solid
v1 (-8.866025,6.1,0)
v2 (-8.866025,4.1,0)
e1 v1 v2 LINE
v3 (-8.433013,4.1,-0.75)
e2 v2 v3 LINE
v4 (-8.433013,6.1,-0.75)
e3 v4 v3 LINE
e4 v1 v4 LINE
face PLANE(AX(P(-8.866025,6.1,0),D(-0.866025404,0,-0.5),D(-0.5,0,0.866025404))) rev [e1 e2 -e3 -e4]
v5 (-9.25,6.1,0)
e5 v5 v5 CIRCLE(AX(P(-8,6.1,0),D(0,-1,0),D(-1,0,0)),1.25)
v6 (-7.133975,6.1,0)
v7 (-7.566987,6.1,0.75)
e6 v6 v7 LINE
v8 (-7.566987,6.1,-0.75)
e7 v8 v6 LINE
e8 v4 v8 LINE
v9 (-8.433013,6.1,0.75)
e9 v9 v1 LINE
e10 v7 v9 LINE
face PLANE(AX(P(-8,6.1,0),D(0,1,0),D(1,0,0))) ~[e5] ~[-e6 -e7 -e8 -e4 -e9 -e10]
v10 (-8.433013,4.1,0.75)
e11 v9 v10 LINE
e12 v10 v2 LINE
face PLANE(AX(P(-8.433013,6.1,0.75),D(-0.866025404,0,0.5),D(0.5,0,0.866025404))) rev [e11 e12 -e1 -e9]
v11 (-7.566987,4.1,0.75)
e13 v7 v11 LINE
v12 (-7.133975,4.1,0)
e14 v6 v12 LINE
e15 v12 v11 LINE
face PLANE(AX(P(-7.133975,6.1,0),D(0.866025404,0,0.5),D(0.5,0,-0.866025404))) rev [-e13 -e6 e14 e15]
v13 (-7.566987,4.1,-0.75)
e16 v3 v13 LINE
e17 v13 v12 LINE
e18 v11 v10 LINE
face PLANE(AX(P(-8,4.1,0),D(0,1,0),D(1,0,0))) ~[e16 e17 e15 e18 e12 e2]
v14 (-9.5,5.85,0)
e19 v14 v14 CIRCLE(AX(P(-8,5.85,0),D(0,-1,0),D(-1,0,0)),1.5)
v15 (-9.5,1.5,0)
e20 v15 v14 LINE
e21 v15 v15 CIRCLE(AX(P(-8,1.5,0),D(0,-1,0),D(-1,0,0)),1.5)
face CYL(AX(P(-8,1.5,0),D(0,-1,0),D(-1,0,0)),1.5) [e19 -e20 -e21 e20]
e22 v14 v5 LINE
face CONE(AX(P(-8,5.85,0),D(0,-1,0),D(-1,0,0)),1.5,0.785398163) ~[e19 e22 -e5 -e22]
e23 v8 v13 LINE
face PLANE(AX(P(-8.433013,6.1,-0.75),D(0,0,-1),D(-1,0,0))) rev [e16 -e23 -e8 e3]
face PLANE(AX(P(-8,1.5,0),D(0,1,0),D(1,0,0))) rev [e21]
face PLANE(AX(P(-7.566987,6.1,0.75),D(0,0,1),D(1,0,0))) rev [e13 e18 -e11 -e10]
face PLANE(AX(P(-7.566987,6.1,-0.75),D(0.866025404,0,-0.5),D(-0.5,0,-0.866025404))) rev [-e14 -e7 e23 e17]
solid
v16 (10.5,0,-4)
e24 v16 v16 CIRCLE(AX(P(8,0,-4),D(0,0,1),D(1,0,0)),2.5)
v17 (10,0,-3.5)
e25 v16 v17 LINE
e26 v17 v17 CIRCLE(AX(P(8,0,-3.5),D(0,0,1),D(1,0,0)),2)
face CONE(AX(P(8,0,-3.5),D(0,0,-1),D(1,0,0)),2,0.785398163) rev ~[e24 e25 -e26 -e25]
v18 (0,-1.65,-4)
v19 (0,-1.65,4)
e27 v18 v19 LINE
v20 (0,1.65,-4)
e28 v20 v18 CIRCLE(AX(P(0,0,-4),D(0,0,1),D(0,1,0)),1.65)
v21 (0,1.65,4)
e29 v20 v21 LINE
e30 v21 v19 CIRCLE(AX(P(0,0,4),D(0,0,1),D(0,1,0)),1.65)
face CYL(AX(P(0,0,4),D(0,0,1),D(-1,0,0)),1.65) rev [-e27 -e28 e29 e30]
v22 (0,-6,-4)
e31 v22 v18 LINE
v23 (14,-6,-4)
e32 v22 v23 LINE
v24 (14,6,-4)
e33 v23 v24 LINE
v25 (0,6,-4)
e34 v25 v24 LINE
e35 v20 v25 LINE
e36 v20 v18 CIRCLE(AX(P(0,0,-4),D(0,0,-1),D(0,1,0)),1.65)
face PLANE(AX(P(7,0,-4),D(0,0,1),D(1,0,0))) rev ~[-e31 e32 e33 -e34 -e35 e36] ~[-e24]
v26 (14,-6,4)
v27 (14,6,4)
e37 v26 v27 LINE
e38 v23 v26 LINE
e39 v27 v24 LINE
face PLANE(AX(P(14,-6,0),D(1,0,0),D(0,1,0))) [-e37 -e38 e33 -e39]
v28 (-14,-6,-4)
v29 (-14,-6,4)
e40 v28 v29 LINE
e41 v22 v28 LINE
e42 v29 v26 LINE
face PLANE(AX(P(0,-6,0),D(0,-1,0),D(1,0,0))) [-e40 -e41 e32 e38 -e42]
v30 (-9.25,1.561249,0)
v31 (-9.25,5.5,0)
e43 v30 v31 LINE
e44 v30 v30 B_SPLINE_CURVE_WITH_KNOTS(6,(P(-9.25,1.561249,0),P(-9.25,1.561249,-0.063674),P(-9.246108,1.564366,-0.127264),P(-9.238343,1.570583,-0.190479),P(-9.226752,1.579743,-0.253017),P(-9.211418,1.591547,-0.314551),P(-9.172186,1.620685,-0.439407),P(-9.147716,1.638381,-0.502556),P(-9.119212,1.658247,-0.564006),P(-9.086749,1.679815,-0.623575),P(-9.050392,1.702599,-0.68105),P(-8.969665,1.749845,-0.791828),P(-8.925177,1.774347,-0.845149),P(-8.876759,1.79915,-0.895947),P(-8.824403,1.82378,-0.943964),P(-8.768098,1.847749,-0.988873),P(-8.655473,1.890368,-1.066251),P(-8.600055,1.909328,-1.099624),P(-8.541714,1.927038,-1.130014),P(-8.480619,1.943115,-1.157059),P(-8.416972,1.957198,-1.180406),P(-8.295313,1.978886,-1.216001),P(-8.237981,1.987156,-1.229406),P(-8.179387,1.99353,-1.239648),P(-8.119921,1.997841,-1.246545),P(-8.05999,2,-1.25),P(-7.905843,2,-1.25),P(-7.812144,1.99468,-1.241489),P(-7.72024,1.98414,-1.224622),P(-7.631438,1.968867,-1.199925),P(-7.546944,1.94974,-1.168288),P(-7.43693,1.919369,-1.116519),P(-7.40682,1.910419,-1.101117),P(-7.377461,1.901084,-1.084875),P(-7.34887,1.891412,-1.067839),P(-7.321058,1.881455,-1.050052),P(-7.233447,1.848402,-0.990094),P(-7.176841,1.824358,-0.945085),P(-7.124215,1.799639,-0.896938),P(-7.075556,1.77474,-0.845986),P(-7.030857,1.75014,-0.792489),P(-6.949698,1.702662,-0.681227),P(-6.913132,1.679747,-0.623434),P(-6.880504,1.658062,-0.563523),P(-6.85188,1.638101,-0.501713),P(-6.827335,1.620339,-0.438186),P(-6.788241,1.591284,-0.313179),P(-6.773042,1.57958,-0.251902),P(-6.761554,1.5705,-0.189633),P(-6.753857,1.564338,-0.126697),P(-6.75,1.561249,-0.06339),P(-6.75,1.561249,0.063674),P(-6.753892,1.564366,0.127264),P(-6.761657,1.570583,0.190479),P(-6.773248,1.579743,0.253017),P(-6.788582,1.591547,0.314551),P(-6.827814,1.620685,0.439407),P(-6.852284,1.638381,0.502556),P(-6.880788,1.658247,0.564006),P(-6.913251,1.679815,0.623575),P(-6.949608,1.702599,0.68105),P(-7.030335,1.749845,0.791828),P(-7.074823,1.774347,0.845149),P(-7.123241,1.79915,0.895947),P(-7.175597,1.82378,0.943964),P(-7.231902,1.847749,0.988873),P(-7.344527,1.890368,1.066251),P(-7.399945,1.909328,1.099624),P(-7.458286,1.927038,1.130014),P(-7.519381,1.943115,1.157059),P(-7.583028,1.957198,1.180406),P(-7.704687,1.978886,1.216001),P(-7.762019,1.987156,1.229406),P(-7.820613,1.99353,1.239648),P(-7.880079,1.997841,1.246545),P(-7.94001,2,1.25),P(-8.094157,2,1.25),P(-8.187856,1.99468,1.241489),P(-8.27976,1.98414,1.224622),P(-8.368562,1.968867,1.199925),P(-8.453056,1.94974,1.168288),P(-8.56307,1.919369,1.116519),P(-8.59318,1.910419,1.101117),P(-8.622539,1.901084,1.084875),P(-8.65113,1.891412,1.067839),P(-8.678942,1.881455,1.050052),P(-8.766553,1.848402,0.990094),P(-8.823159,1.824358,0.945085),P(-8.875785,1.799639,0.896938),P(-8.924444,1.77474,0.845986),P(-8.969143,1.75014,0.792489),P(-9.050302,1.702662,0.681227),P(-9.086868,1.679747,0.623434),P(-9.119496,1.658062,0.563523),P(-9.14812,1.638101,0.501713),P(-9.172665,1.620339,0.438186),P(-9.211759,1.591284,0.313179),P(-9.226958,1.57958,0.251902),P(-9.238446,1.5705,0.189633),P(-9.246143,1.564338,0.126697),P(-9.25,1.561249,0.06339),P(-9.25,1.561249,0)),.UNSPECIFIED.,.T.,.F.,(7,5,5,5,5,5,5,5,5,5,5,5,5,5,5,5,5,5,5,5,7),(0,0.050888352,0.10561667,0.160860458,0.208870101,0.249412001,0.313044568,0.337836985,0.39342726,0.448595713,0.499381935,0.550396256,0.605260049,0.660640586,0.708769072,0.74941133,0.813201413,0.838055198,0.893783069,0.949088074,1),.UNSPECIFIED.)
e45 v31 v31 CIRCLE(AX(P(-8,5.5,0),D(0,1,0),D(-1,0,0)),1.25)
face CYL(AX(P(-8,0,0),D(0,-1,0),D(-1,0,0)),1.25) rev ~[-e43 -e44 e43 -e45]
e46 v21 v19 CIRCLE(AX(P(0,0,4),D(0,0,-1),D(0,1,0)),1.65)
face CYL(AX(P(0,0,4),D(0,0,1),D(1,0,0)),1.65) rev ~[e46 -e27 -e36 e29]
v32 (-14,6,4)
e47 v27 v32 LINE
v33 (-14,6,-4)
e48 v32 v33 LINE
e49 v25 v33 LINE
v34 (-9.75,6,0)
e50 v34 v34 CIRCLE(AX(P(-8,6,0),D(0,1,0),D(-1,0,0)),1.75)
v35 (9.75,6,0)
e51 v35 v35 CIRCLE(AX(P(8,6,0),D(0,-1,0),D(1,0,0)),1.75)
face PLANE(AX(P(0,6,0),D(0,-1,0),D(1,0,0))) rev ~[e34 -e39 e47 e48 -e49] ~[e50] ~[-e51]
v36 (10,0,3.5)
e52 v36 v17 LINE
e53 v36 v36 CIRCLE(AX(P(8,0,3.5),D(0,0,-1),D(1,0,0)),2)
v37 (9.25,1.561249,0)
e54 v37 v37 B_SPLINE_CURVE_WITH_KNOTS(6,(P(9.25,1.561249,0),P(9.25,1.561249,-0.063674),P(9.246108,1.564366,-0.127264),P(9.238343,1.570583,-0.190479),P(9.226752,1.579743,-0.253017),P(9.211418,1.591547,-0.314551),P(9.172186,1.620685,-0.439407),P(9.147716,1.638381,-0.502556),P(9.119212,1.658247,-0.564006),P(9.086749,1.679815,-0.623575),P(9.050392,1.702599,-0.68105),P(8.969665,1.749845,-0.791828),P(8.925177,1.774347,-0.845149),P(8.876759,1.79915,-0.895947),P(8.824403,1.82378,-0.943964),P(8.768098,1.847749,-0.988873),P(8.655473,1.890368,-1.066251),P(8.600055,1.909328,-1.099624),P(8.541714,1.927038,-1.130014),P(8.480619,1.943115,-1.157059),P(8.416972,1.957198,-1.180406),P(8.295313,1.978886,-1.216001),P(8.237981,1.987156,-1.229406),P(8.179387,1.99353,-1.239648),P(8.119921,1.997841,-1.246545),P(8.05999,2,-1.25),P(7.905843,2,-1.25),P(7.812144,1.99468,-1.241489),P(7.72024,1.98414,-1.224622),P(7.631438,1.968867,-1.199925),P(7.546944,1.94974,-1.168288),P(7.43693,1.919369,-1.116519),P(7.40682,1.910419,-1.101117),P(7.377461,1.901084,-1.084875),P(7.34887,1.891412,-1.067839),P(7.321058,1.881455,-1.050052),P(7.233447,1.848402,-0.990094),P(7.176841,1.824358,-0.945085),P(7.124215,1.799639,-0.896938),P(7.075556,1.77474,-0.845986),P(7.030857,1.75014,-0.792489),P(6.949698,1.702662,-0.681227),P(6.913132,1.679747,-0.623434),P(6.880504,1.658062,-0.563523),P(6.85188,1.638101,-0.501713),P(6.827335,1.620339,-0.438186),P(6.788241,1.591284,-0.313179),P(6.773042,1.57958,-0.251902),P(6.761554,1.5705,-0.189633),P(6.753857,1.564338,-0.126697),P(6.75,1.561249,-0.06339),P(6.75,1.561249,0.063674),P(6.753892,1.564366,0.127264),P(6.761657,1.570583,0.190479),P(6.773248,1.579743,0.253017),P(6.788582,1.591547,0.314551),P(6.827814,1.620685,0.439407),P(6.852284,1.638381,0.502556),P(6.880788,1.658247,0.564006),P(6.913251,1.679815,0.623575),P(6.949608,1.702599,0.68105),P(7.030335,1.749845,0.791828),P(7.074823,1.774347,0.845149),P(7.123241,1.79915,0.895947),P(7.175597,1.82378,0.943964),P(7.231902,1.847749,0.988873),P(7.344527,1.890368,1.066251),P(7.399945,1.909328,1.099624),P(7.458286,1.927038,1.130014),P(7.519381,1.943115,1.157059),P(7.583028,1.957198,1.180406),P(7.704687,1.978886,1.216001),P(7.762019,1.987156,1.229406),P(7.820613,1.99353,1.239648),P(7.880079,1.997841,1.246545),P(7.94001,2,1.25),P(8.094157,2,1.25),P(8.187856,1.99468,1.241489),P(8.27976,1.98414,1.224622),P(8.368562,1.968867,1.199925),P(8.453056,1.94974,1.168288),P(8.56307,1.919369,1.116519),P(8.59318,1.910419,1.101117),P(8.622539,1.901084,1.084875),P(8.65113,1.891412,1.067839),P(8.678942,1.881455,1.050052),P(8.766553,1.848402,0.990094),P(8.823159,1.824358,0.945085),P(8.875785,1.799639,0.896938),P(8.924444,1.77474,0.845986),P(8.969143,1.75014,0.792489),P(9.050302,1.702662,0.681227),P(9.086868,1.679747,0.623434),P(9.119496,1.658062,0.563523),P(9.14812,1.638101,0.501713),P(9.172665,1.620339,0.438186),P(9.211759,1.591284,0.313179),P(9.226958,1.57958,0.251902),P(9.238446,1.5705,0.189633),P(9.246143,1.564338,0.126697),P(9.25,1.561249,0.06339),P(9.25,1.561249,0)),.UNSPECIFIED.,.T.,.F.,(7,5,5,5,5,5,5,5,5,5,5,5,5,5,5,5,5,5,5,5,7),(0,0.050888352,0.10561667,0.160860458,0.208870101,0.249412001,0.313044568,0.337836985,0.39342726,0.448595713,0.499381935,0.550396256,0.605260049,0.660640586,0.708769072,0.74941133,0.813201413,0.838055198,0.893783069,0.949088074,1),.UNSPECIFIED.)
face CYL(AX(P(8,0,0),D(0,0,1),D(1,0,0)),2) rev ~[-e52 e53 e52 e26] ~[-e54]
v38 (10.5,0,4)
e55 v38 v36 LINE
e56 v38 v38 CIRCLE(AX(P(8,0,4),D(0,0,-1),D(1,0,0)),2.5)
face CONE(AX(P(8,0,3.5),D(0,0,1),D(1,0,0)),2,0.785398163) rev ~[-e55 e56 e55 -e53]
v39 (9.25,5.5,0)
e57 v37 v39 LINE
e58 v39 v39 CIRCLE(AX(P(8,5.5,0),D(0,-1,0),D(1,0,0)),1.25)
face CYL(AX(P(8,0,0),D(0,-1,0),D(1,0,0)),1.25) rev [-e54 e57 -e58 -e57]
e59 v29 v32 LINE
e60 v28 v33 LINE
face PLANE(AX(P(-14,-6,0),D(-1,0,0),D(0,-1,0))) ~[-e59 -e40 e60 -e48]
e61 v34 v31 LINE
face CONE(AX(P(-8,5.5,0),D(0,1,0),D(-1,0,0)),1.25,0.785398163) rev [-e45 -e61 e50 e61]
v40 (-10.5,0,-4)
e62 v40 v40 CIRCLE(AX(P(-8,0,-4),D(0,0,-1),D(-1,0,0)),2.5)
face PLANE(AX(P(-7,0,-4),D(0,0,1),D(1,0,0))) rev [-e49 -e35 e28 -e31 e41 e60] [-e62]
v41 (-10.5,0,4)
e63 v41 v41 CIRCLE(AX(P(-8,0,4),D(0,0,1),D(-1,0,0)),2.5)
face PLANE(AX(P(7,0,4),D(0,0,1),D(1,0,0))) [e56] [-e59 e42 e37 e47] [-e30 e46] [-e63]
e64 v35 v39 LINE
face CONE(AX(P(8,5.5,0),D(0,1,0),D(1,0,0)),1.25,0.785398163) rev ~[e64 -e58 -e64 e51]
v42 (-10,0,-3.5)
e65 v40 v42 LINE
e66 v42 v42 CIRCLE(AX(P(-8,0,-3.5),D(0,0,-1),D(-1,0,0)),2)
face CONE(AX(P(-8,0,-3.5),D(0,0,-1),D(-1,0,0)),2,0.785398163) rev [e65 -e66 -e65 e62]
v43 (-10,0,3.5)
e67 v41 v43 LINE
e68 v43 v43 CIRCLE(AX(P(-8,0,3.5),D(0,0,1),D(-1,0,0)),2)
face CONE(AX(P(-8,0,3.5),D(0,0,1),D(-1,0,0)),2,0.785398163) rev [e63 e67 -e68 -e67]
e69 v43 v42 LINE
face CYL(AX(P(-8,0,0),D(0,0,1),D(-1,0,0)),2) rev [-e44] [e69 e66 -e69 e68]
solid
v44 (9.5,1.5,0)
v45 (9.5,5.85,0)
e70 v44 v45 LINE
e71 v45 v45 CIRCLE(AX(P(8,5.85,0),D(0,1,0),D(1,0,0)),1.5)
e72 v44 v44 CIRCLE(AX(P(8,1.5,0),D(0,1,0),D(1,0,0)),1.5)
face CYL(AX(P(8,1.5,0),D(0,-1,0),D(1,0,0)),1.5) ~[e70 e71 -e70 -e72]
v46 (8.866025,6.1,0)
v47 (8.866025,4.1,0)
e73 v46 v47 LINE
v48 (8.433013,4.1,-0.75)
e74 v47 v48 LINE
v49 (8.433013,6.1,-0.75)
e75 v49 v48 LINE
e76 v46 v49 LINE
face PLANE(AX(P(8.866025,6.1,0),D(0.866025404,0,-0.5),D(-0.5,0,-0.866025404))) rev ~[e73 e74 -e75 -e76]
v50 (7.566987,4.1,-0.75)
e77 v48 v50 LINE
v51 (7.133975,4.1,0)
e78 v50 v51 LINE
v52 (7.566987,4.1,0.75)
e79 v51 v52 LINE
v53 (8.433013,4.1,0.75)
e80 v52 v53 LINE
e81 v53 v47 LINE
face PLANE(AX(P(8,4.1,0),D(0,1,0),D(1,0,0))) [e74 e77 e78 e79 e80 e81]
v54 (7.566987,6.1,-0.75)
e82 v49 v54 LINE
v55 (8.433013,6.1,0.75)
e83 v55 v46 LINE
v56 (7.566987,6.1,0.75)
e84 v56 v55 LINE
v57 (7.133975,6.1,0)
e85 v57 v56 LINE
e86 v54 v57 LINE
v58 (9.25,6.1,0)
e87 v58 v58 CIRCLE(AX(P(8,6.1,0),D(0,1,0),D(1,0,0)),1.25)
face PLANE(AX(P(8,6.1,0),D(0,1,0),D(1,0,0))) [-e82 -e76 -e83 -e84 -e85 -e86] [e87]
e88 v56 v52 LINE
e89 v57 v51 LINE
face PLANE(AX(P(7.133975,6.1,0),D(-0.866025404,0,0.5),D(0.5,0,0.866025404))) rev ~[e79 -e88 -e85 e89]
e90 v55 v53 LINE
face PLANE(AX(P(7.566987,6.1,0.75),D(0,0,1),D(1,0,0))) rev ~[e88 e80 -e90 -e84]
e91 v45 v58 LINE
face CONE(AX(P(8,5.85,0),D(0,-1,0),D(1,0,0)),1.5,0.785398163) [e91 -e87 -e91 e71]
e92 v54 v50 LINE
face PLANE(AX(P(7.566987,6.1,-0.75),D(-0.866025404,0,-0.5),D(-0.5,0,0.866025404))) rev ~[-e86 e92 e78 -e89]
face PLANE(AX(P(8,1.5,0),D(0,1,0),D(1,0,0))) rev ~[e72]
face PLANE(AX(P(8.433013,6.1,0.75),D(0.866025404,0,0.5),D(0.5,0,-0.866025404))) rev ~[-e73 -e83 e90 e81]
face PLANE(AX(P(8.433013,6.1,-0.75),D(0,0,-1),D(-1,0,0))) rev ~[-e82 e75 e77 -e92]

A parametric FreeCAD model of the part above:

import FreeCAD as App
import Part
import Sketcher
Q = App.Units.Quantity


def edges_at(feature, points):
    """Names of the edges that pass closest to the given points."""
    edges = feature.Shape.Edges
    near = lambda p: min(range(len(edges)), key=lambda i: edges[i].distToShape(Part.Vertex(*p))[0])
    return sorted({f"Edge{near(p) + 1}" for p in points})


def add_polygon(sketch, points):
    """Adds a closed chain of lines whose ends are joined by coincident constraints."""
    first, n = sketch.GeometryCount, len(points)
    for a, b in zip(points, points[1:] + points[:1]):
        sketch.addGeometry(Part.LineSegment(App.Vector(*a, 0), App.Vector(*b, 0)), False)
    for i in range(n):
        sketch.addConstraint(Sketcher.Constraint("Coincident", first + i, 2, first + (i + 1) % n, 1))

doc = App.newDocument("Part")
body = doc.addObject("PartDesign::Body", "Body")

sketch1 = doc.addObject("Sketcher::SketchObject", "Sketch")
body.addObject(sketch1)
sketch1.AttachmentSupport = (doc.XY_Plane, [""])
sketch1.MapMode = "FlatFace"
add_polygon(sketch1, [(0, 6), (0, -6), (14, -6), (14, 6)])
sketch1.addConstraint(Sketcher.Constraint("Vertical", 0))
sketch1.addConstraint(Sketcher.Constraint("Horizontal", 1))
sketch1.addConstraint(Sketcher.Constraint("Vertical", 2))
sketch1.addConstraint(Sketcher.Constraint("Horizontal", 3))
sketch1.addConstraint(Sketcher.Constraint("Symmetric", 0, 2, 3, 2, -1, 1))
sketch1.addConstraint(Sketcher.Constraint("DistanceX", 1, 1, 1, 2, Q("14 mm")))
sketch1.addConstraint(Sketcher.Constraint("DistanceY", 0, 2, 0, 1, Q("12 mm")))
pad1 = doc.addObject("PartDesign::Pad", "Pad")
body.addObject(pad1)
pad1.Profile = sketch1
pad1.Length = 8
pad1.Midplane = True

sketch2 = doc.addObject("Sketcher::SketchObject", "Sketch001")
body.addObject(sketch2)
sketch2.AttachmentSupport = (doc.XY_Plane, [""])
sketch2.MapMode = "FlatFace"
sketch2.addGeometry(Part.Circle(App.Vector(8, 0, 0), App.Vector(0, 0, 1), 2), False)
sketch2.addConstraint(Sketcher.Constraint("PointOnObject", 0, 3, -1))
sketch2.addConstraint(Sketcher.Constraint("Diameter", 0, Q("4 mm")))
sketch2.addConstraint(Sketcher.Constraint("DistanceX", -1, 1, 0, 3, Q("8 mm")))
pocket1 = doc.addObject("PartDesign::Pocket", "Pocket")
body.addObject(pocket1)
pocket1.Profile = sketch2
pocket1.Type = "ThroughAll"
pocket1.Midplane = True

sketch3 = doc.addObject("Sketcher::SketchObject", "Sketch002")
body.addObject(sketch3)
sketch3.AttachmentSupport = (doc.XY_Plane, [""])
sketch3.MapMode = "FlatFace"
sketch3.AttachmentOffset = App.Placement(App.Vector(0, 0, 4), App.Rotation())
sketch3.addGeometry(Part.Circle(App.Vector(0, 0, 0), App.Vector(0, 0, 1), 1.6), False)
sketch3.addConstraint(Sketcher.Constraint("Coincident", 0, 3, -1, 1))
sketch3.addConstraint(Sketcher.Constraint("Diameter", 0, Q("3.3 mm")))
pocket2 = doc.addObject("PartDesign::Pocket", "Pocket001")
body.addObject(pocket2)
pocket2.Profile = sketch3
pocket2.Type = "ThroughAll"

sketch4 = doc.addObject("Sketcher::SketchObject", "Sketch003")
body.addObject(sketch4)
sketch4.AttachmentSupport = (doc.XZ_Plane, [""])
sketch4.MapMode = "FlatFace"
sketch4.addGeometry(Part.Circle(App.Vector(8, 0, 0), App.Vector(0, 0, 1), 1.2), False)
sketch4.addConstraint(Sketcher.Constraint("PointOnObject", 0, 3, -1))
sketch4.addConstraint(Sketcher.Constraint("Diameter", 0, Q("2.5 mm")))
sketch4.addConstraint(Sketcher.Constraint("DistanceX", -1, 1, 0, 3, Q("8 mm")))
pocket3 = doc.addObject("PartDesign::Pocket", "Pocket002")
body.addObject(pocket3)
pocket3.Profile = sketch4
pocket3.Type = "ThroughAll"
doc.recompute()

chamfer = doc.addObject("PartDesign::Chamfer", "Chamfer")
body.addObject(chamfer)
chamfer.Base = (pocket3, edges_at(pocket3, [(6, 0, -4), (6, 0, 4), (6.75, 6, 0)]))
chamfer.Size = 0.5
body2 = doc.addObject("PartDesign::Body", "Body001")

sketch5 = doc.addObject("Sketcher::SketchObject", "Sketch004")
body2.addObject(sketch5)
sketch5.AttachmentSupport = (doc.getObject("XZ_Plane001"), [""])
sketch5.MapMode = "FlatFace"
sketch5.AttachmentOffset = App.Placement(App.Vector(0, 0, -1.5), App.Rotation())
sketch5.addGeometry(Part.Circle(App.Vector(8, 0, 0), App.Vector(0, 0, 1), 1.5), False)
sketch5.addConstraint(Sketcher.Constraint("PointOnObject", 0, 3, -1))
sketch5.addConstraint(Sketcher.Constraint("Diameter", 0, Q("3 mm")))
sketch5.addConstraint(Sketcher.Constraint("DistanceX", -1, 1, 0, 3, Q("8 mm")))
pad2 = doc.addObject("PartDesign::Pad", "Pad001")
body2.addObject(pad2)
pad2.Profile = sketch5
pad2.Length = 4.6
pad2.Reversed = True
doc.recompute()

chamfer2 = doc.addObject("PartDesign::Chamfer", "Chamfer001")
body2.addObject(chamfer2)
chamfer2.Base = (pad2, edges_at(pad2, [(6.5, 6.1, 0)]))
chamfer2.Size = 0.25

sketch6 = doc.addObject("Sketcher::SketchObject", "Sketch005")
body2.addObject(sketch6)
sketch6.AttachmentSupport = (doc.getObject("XZ_Plane001"), [""])
sketch6.MapMode = "FlatFace"
sketch6.AttachmentOffset = App.Placement(App.Vector(0, 0, -6.1), App.Rotation())
add_polygon(sketch6, [(7.1, 0), (7.6, 0.8), (8.4, 0.8), (8.9, 0), (8.4, -0.8), (7.6, -0.8)])
sketch6.addConstraint(Sketcher.Constraint("Horizontal", 1))
sketch6.addConstraint(Sketcher.Constraint("Horizontal", 4))
sketch6.addConstraint(Sketcher.Constraint("Symmetric", 1, 2, 3, 2, -1))
sketch6.addConstraint(Sketcher.Constraint("PointOnObject", 2, 2, -1))
sketch6.addConstraint(Sketcher.Constraint("PointOnObject", 5, 2, -1))
sketch6.addConstraint(Sketcher.Constraint("Parallel", 0, 3))
sketch6.addConstraint(Sketcher.Constraint("Parallel", 2, 5))
sketch6.addConstraint(Sketcher.Constraint("Angle", 0, Q("60 deg")))
sketch6.addConstraint(Sketcher.Constraint("DistanceY", 3, 2, 1, 2, Q("1.5 mm")))
sketch6.addConstraint(Sketcher.Constraint("DistanceX", 1, 1, 1, 2, Q("0.866025 mm")))
sketch6.addConstraint(Sketcher.Constraint("DistanceX", -1, 1, 0, 2, Q("7.566987 mm")))
pocket4 = doc.addObject("PartDesign::Pocket", "Pocket003")
body2.addObject(pocket4)
pocket4.Profile = sketch6
pocket4.Length = 2
pocket4.Reversed = True
body3 = doc.addObject("PartDesign::Body", "Body002")
doc.recompute()

mirroring = doc.addObject("Part::Mirroring", "Mirroring")
mirroring.Source = body
mirroring.Base = App.Vector(0, 0, 0)
mirroring.Normal = App.Vector(1, 0, 0)
body3.BaseFeature = mirroring
doc.recompute()

boolean = doc.addObject("PartDesign::Boolean", "Boolean")
body3.addObject(boolean)
boolean.Type = "Fuse"
boolean.addObjects([body])
body4 = doc.addObject("PartDesign::Body", "Body003")
doc.recompute()

mirroring2 = doc.addObject("Part::Mirroring", "Mirroring001")
mirroring2.Source = body2
mirroring2.Base = App.Vector(0, 0, 0)
mirroring2.Normal = App.Vector(1, 0, 0)
body4.BaseFeature = mirroring2
doc.recompute()
mirroring.Visibility = False
mirroring2.Visibility = False

doc.recompute()
